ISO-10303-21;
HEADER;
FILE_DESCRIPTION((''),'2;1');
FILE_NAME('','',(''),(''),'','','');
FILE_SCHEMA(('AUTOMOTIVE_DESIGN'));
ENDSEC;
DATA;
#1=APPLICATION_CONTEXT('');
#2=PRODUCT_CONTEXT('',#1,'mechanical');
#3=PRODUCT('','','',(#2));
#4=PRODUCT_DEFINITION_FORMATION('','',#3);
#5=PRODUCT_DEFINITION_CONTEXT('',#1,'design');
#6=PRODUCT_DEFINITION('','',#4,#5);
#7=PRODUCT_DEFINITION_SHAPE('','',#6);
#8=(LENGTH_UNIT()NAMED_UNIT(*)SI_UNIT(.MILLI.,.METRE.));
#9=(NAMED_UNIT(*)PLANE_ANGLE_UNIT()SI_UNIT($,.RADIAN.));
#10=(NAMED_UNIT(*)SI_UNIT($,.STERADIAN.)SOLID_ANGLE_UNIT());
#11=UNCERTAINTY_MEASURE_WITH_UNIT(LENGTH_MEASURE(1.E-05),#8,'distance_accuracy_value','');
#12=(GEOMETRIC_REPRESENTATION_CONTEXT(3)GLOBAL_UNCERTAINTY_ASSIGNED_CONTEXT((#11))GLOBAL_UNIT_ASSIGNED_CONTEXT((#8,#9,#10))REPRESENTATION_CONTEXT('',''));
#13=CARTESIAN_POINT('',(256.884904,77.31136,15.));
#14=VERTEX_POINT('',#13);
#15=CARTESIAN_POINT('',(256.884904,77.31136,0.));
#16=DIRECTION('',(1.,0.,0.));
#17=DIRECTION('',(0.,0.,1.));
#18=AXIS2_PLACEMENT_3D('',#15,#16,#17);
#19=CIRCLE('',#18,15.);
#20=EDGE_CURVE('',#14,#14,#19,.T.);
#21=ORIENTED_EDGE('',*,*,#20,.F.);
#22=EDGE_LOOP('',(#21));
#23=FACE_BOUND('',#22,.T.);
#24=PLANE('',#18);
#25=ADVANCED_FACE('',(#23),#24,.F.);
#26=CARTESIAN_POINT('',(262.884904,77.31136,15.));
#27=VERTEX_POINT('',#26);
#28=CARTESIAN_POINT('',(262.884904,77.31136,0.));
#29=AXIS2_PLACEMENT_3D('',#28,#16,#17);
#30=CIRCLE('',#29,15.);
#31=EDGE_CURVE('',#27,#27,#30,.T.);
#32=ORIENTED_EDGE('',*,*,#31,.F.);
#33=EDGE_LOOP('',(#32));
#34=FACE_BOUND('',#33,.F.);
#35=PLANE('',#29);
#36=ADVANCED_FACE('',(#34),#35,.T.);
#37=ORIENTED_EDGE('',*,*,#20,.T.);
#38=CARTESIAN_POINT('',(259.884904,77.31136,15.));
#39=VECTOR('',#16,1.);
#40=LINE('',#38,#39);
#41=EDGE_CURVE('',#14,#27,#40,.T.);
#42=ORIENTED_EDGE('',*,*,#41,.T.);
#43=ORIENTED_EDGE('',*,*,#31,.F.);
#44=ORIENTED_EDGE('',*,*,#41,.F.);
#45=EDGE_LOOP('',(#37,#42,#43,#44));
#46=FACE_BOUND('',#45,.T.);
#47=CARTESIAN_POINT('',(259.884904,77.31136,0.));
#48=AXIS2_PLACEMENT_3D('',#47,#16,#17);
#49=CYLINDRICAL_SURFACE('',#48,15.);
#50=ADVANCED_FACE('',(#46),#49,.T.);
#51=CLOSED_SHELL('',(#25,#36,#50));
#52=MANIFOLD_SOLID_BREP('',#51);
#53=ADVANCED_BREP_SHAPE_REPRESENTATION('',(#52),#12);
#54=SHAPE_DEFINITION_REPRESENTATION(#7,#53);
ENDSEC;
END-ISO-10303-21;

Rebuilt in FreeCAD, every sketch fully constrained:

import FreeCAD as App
import Part
import Sketcher
Q = App.Units.Quantity


def add_polygon(sketch, points):
    """Adds a closed chain of lines whose ends are joined by coincident constraints."""
    first, n = sketch.GeometryCount, len(points)
    for a, b in zip(points, points[1:] + points[:1]):
        sketch.addGeometry(Part.LineSegment(App.Vector(*a, 0), App.Vector(*b, 0)), False)
    for i in range(n):
        sketch.addConstraint(Sketcher.Constraint("Coincident", first + i, 2, first + (i + 1) % n, 1))

doc = App.newDocument("Part")
body = doc.addObject("PartDesign::Body", "Body")

# Sketch on XY plane
sketch1 = body.newObject("Sketcher::SketchObject", "Sketch")
sketch1.AttachmentSupport = (doc.getObject("XY_Plane"), [""])
sketch1.MapMode = "FlatFace"
add_polygon(sketch1, [(257, 92), (257, 77), (263, 77), (263, 92)])  # lines 0-3
sketch1.addGeometry(Part.LineSegment(App.Vector(257, 77, 0), App.Vector(263, 77, 0)), True)  # axis
sketch1.addConstraint([
    Sketcher.Constraint("Vertical", 0),
    Sketcher.Constraint("Horizontal", 1),
    Sketcher.Constraint("Vertical", 2),
    Sketcher.Constraint("Horizontal", 3),
    Sketcher.Constraint("Horizontal", 4),
    Sketcher.Constraint("Coincident", 4, 1, 0, 2),
    Sketcher.Constraint("Vertical", 2, 2, 4, 2),
    Sketcher.Constraint("DistanceX", 1, 1, 1, 2, Q("6 mm")),
    Sketcher.Constraint("DistanceY", 0, 2, 0, 1, Q("15 mm")),
    Sketcher.Constraint("DistanceY", -1, 1, 0, 2, Q("77.31136 mm")),
    Sketcher.Constraint("DistanceX", -1, 1, 0, 2, Q("256.884904 mm")),
])
revolution = body.newObject("PartDesign::Revolution", "Revolution")
revolution.Profile = sketch1
revolution.ReferenceAxis = (sketch1, ["Axis0"])
revolution.Angle = 360

doc.recompute()
